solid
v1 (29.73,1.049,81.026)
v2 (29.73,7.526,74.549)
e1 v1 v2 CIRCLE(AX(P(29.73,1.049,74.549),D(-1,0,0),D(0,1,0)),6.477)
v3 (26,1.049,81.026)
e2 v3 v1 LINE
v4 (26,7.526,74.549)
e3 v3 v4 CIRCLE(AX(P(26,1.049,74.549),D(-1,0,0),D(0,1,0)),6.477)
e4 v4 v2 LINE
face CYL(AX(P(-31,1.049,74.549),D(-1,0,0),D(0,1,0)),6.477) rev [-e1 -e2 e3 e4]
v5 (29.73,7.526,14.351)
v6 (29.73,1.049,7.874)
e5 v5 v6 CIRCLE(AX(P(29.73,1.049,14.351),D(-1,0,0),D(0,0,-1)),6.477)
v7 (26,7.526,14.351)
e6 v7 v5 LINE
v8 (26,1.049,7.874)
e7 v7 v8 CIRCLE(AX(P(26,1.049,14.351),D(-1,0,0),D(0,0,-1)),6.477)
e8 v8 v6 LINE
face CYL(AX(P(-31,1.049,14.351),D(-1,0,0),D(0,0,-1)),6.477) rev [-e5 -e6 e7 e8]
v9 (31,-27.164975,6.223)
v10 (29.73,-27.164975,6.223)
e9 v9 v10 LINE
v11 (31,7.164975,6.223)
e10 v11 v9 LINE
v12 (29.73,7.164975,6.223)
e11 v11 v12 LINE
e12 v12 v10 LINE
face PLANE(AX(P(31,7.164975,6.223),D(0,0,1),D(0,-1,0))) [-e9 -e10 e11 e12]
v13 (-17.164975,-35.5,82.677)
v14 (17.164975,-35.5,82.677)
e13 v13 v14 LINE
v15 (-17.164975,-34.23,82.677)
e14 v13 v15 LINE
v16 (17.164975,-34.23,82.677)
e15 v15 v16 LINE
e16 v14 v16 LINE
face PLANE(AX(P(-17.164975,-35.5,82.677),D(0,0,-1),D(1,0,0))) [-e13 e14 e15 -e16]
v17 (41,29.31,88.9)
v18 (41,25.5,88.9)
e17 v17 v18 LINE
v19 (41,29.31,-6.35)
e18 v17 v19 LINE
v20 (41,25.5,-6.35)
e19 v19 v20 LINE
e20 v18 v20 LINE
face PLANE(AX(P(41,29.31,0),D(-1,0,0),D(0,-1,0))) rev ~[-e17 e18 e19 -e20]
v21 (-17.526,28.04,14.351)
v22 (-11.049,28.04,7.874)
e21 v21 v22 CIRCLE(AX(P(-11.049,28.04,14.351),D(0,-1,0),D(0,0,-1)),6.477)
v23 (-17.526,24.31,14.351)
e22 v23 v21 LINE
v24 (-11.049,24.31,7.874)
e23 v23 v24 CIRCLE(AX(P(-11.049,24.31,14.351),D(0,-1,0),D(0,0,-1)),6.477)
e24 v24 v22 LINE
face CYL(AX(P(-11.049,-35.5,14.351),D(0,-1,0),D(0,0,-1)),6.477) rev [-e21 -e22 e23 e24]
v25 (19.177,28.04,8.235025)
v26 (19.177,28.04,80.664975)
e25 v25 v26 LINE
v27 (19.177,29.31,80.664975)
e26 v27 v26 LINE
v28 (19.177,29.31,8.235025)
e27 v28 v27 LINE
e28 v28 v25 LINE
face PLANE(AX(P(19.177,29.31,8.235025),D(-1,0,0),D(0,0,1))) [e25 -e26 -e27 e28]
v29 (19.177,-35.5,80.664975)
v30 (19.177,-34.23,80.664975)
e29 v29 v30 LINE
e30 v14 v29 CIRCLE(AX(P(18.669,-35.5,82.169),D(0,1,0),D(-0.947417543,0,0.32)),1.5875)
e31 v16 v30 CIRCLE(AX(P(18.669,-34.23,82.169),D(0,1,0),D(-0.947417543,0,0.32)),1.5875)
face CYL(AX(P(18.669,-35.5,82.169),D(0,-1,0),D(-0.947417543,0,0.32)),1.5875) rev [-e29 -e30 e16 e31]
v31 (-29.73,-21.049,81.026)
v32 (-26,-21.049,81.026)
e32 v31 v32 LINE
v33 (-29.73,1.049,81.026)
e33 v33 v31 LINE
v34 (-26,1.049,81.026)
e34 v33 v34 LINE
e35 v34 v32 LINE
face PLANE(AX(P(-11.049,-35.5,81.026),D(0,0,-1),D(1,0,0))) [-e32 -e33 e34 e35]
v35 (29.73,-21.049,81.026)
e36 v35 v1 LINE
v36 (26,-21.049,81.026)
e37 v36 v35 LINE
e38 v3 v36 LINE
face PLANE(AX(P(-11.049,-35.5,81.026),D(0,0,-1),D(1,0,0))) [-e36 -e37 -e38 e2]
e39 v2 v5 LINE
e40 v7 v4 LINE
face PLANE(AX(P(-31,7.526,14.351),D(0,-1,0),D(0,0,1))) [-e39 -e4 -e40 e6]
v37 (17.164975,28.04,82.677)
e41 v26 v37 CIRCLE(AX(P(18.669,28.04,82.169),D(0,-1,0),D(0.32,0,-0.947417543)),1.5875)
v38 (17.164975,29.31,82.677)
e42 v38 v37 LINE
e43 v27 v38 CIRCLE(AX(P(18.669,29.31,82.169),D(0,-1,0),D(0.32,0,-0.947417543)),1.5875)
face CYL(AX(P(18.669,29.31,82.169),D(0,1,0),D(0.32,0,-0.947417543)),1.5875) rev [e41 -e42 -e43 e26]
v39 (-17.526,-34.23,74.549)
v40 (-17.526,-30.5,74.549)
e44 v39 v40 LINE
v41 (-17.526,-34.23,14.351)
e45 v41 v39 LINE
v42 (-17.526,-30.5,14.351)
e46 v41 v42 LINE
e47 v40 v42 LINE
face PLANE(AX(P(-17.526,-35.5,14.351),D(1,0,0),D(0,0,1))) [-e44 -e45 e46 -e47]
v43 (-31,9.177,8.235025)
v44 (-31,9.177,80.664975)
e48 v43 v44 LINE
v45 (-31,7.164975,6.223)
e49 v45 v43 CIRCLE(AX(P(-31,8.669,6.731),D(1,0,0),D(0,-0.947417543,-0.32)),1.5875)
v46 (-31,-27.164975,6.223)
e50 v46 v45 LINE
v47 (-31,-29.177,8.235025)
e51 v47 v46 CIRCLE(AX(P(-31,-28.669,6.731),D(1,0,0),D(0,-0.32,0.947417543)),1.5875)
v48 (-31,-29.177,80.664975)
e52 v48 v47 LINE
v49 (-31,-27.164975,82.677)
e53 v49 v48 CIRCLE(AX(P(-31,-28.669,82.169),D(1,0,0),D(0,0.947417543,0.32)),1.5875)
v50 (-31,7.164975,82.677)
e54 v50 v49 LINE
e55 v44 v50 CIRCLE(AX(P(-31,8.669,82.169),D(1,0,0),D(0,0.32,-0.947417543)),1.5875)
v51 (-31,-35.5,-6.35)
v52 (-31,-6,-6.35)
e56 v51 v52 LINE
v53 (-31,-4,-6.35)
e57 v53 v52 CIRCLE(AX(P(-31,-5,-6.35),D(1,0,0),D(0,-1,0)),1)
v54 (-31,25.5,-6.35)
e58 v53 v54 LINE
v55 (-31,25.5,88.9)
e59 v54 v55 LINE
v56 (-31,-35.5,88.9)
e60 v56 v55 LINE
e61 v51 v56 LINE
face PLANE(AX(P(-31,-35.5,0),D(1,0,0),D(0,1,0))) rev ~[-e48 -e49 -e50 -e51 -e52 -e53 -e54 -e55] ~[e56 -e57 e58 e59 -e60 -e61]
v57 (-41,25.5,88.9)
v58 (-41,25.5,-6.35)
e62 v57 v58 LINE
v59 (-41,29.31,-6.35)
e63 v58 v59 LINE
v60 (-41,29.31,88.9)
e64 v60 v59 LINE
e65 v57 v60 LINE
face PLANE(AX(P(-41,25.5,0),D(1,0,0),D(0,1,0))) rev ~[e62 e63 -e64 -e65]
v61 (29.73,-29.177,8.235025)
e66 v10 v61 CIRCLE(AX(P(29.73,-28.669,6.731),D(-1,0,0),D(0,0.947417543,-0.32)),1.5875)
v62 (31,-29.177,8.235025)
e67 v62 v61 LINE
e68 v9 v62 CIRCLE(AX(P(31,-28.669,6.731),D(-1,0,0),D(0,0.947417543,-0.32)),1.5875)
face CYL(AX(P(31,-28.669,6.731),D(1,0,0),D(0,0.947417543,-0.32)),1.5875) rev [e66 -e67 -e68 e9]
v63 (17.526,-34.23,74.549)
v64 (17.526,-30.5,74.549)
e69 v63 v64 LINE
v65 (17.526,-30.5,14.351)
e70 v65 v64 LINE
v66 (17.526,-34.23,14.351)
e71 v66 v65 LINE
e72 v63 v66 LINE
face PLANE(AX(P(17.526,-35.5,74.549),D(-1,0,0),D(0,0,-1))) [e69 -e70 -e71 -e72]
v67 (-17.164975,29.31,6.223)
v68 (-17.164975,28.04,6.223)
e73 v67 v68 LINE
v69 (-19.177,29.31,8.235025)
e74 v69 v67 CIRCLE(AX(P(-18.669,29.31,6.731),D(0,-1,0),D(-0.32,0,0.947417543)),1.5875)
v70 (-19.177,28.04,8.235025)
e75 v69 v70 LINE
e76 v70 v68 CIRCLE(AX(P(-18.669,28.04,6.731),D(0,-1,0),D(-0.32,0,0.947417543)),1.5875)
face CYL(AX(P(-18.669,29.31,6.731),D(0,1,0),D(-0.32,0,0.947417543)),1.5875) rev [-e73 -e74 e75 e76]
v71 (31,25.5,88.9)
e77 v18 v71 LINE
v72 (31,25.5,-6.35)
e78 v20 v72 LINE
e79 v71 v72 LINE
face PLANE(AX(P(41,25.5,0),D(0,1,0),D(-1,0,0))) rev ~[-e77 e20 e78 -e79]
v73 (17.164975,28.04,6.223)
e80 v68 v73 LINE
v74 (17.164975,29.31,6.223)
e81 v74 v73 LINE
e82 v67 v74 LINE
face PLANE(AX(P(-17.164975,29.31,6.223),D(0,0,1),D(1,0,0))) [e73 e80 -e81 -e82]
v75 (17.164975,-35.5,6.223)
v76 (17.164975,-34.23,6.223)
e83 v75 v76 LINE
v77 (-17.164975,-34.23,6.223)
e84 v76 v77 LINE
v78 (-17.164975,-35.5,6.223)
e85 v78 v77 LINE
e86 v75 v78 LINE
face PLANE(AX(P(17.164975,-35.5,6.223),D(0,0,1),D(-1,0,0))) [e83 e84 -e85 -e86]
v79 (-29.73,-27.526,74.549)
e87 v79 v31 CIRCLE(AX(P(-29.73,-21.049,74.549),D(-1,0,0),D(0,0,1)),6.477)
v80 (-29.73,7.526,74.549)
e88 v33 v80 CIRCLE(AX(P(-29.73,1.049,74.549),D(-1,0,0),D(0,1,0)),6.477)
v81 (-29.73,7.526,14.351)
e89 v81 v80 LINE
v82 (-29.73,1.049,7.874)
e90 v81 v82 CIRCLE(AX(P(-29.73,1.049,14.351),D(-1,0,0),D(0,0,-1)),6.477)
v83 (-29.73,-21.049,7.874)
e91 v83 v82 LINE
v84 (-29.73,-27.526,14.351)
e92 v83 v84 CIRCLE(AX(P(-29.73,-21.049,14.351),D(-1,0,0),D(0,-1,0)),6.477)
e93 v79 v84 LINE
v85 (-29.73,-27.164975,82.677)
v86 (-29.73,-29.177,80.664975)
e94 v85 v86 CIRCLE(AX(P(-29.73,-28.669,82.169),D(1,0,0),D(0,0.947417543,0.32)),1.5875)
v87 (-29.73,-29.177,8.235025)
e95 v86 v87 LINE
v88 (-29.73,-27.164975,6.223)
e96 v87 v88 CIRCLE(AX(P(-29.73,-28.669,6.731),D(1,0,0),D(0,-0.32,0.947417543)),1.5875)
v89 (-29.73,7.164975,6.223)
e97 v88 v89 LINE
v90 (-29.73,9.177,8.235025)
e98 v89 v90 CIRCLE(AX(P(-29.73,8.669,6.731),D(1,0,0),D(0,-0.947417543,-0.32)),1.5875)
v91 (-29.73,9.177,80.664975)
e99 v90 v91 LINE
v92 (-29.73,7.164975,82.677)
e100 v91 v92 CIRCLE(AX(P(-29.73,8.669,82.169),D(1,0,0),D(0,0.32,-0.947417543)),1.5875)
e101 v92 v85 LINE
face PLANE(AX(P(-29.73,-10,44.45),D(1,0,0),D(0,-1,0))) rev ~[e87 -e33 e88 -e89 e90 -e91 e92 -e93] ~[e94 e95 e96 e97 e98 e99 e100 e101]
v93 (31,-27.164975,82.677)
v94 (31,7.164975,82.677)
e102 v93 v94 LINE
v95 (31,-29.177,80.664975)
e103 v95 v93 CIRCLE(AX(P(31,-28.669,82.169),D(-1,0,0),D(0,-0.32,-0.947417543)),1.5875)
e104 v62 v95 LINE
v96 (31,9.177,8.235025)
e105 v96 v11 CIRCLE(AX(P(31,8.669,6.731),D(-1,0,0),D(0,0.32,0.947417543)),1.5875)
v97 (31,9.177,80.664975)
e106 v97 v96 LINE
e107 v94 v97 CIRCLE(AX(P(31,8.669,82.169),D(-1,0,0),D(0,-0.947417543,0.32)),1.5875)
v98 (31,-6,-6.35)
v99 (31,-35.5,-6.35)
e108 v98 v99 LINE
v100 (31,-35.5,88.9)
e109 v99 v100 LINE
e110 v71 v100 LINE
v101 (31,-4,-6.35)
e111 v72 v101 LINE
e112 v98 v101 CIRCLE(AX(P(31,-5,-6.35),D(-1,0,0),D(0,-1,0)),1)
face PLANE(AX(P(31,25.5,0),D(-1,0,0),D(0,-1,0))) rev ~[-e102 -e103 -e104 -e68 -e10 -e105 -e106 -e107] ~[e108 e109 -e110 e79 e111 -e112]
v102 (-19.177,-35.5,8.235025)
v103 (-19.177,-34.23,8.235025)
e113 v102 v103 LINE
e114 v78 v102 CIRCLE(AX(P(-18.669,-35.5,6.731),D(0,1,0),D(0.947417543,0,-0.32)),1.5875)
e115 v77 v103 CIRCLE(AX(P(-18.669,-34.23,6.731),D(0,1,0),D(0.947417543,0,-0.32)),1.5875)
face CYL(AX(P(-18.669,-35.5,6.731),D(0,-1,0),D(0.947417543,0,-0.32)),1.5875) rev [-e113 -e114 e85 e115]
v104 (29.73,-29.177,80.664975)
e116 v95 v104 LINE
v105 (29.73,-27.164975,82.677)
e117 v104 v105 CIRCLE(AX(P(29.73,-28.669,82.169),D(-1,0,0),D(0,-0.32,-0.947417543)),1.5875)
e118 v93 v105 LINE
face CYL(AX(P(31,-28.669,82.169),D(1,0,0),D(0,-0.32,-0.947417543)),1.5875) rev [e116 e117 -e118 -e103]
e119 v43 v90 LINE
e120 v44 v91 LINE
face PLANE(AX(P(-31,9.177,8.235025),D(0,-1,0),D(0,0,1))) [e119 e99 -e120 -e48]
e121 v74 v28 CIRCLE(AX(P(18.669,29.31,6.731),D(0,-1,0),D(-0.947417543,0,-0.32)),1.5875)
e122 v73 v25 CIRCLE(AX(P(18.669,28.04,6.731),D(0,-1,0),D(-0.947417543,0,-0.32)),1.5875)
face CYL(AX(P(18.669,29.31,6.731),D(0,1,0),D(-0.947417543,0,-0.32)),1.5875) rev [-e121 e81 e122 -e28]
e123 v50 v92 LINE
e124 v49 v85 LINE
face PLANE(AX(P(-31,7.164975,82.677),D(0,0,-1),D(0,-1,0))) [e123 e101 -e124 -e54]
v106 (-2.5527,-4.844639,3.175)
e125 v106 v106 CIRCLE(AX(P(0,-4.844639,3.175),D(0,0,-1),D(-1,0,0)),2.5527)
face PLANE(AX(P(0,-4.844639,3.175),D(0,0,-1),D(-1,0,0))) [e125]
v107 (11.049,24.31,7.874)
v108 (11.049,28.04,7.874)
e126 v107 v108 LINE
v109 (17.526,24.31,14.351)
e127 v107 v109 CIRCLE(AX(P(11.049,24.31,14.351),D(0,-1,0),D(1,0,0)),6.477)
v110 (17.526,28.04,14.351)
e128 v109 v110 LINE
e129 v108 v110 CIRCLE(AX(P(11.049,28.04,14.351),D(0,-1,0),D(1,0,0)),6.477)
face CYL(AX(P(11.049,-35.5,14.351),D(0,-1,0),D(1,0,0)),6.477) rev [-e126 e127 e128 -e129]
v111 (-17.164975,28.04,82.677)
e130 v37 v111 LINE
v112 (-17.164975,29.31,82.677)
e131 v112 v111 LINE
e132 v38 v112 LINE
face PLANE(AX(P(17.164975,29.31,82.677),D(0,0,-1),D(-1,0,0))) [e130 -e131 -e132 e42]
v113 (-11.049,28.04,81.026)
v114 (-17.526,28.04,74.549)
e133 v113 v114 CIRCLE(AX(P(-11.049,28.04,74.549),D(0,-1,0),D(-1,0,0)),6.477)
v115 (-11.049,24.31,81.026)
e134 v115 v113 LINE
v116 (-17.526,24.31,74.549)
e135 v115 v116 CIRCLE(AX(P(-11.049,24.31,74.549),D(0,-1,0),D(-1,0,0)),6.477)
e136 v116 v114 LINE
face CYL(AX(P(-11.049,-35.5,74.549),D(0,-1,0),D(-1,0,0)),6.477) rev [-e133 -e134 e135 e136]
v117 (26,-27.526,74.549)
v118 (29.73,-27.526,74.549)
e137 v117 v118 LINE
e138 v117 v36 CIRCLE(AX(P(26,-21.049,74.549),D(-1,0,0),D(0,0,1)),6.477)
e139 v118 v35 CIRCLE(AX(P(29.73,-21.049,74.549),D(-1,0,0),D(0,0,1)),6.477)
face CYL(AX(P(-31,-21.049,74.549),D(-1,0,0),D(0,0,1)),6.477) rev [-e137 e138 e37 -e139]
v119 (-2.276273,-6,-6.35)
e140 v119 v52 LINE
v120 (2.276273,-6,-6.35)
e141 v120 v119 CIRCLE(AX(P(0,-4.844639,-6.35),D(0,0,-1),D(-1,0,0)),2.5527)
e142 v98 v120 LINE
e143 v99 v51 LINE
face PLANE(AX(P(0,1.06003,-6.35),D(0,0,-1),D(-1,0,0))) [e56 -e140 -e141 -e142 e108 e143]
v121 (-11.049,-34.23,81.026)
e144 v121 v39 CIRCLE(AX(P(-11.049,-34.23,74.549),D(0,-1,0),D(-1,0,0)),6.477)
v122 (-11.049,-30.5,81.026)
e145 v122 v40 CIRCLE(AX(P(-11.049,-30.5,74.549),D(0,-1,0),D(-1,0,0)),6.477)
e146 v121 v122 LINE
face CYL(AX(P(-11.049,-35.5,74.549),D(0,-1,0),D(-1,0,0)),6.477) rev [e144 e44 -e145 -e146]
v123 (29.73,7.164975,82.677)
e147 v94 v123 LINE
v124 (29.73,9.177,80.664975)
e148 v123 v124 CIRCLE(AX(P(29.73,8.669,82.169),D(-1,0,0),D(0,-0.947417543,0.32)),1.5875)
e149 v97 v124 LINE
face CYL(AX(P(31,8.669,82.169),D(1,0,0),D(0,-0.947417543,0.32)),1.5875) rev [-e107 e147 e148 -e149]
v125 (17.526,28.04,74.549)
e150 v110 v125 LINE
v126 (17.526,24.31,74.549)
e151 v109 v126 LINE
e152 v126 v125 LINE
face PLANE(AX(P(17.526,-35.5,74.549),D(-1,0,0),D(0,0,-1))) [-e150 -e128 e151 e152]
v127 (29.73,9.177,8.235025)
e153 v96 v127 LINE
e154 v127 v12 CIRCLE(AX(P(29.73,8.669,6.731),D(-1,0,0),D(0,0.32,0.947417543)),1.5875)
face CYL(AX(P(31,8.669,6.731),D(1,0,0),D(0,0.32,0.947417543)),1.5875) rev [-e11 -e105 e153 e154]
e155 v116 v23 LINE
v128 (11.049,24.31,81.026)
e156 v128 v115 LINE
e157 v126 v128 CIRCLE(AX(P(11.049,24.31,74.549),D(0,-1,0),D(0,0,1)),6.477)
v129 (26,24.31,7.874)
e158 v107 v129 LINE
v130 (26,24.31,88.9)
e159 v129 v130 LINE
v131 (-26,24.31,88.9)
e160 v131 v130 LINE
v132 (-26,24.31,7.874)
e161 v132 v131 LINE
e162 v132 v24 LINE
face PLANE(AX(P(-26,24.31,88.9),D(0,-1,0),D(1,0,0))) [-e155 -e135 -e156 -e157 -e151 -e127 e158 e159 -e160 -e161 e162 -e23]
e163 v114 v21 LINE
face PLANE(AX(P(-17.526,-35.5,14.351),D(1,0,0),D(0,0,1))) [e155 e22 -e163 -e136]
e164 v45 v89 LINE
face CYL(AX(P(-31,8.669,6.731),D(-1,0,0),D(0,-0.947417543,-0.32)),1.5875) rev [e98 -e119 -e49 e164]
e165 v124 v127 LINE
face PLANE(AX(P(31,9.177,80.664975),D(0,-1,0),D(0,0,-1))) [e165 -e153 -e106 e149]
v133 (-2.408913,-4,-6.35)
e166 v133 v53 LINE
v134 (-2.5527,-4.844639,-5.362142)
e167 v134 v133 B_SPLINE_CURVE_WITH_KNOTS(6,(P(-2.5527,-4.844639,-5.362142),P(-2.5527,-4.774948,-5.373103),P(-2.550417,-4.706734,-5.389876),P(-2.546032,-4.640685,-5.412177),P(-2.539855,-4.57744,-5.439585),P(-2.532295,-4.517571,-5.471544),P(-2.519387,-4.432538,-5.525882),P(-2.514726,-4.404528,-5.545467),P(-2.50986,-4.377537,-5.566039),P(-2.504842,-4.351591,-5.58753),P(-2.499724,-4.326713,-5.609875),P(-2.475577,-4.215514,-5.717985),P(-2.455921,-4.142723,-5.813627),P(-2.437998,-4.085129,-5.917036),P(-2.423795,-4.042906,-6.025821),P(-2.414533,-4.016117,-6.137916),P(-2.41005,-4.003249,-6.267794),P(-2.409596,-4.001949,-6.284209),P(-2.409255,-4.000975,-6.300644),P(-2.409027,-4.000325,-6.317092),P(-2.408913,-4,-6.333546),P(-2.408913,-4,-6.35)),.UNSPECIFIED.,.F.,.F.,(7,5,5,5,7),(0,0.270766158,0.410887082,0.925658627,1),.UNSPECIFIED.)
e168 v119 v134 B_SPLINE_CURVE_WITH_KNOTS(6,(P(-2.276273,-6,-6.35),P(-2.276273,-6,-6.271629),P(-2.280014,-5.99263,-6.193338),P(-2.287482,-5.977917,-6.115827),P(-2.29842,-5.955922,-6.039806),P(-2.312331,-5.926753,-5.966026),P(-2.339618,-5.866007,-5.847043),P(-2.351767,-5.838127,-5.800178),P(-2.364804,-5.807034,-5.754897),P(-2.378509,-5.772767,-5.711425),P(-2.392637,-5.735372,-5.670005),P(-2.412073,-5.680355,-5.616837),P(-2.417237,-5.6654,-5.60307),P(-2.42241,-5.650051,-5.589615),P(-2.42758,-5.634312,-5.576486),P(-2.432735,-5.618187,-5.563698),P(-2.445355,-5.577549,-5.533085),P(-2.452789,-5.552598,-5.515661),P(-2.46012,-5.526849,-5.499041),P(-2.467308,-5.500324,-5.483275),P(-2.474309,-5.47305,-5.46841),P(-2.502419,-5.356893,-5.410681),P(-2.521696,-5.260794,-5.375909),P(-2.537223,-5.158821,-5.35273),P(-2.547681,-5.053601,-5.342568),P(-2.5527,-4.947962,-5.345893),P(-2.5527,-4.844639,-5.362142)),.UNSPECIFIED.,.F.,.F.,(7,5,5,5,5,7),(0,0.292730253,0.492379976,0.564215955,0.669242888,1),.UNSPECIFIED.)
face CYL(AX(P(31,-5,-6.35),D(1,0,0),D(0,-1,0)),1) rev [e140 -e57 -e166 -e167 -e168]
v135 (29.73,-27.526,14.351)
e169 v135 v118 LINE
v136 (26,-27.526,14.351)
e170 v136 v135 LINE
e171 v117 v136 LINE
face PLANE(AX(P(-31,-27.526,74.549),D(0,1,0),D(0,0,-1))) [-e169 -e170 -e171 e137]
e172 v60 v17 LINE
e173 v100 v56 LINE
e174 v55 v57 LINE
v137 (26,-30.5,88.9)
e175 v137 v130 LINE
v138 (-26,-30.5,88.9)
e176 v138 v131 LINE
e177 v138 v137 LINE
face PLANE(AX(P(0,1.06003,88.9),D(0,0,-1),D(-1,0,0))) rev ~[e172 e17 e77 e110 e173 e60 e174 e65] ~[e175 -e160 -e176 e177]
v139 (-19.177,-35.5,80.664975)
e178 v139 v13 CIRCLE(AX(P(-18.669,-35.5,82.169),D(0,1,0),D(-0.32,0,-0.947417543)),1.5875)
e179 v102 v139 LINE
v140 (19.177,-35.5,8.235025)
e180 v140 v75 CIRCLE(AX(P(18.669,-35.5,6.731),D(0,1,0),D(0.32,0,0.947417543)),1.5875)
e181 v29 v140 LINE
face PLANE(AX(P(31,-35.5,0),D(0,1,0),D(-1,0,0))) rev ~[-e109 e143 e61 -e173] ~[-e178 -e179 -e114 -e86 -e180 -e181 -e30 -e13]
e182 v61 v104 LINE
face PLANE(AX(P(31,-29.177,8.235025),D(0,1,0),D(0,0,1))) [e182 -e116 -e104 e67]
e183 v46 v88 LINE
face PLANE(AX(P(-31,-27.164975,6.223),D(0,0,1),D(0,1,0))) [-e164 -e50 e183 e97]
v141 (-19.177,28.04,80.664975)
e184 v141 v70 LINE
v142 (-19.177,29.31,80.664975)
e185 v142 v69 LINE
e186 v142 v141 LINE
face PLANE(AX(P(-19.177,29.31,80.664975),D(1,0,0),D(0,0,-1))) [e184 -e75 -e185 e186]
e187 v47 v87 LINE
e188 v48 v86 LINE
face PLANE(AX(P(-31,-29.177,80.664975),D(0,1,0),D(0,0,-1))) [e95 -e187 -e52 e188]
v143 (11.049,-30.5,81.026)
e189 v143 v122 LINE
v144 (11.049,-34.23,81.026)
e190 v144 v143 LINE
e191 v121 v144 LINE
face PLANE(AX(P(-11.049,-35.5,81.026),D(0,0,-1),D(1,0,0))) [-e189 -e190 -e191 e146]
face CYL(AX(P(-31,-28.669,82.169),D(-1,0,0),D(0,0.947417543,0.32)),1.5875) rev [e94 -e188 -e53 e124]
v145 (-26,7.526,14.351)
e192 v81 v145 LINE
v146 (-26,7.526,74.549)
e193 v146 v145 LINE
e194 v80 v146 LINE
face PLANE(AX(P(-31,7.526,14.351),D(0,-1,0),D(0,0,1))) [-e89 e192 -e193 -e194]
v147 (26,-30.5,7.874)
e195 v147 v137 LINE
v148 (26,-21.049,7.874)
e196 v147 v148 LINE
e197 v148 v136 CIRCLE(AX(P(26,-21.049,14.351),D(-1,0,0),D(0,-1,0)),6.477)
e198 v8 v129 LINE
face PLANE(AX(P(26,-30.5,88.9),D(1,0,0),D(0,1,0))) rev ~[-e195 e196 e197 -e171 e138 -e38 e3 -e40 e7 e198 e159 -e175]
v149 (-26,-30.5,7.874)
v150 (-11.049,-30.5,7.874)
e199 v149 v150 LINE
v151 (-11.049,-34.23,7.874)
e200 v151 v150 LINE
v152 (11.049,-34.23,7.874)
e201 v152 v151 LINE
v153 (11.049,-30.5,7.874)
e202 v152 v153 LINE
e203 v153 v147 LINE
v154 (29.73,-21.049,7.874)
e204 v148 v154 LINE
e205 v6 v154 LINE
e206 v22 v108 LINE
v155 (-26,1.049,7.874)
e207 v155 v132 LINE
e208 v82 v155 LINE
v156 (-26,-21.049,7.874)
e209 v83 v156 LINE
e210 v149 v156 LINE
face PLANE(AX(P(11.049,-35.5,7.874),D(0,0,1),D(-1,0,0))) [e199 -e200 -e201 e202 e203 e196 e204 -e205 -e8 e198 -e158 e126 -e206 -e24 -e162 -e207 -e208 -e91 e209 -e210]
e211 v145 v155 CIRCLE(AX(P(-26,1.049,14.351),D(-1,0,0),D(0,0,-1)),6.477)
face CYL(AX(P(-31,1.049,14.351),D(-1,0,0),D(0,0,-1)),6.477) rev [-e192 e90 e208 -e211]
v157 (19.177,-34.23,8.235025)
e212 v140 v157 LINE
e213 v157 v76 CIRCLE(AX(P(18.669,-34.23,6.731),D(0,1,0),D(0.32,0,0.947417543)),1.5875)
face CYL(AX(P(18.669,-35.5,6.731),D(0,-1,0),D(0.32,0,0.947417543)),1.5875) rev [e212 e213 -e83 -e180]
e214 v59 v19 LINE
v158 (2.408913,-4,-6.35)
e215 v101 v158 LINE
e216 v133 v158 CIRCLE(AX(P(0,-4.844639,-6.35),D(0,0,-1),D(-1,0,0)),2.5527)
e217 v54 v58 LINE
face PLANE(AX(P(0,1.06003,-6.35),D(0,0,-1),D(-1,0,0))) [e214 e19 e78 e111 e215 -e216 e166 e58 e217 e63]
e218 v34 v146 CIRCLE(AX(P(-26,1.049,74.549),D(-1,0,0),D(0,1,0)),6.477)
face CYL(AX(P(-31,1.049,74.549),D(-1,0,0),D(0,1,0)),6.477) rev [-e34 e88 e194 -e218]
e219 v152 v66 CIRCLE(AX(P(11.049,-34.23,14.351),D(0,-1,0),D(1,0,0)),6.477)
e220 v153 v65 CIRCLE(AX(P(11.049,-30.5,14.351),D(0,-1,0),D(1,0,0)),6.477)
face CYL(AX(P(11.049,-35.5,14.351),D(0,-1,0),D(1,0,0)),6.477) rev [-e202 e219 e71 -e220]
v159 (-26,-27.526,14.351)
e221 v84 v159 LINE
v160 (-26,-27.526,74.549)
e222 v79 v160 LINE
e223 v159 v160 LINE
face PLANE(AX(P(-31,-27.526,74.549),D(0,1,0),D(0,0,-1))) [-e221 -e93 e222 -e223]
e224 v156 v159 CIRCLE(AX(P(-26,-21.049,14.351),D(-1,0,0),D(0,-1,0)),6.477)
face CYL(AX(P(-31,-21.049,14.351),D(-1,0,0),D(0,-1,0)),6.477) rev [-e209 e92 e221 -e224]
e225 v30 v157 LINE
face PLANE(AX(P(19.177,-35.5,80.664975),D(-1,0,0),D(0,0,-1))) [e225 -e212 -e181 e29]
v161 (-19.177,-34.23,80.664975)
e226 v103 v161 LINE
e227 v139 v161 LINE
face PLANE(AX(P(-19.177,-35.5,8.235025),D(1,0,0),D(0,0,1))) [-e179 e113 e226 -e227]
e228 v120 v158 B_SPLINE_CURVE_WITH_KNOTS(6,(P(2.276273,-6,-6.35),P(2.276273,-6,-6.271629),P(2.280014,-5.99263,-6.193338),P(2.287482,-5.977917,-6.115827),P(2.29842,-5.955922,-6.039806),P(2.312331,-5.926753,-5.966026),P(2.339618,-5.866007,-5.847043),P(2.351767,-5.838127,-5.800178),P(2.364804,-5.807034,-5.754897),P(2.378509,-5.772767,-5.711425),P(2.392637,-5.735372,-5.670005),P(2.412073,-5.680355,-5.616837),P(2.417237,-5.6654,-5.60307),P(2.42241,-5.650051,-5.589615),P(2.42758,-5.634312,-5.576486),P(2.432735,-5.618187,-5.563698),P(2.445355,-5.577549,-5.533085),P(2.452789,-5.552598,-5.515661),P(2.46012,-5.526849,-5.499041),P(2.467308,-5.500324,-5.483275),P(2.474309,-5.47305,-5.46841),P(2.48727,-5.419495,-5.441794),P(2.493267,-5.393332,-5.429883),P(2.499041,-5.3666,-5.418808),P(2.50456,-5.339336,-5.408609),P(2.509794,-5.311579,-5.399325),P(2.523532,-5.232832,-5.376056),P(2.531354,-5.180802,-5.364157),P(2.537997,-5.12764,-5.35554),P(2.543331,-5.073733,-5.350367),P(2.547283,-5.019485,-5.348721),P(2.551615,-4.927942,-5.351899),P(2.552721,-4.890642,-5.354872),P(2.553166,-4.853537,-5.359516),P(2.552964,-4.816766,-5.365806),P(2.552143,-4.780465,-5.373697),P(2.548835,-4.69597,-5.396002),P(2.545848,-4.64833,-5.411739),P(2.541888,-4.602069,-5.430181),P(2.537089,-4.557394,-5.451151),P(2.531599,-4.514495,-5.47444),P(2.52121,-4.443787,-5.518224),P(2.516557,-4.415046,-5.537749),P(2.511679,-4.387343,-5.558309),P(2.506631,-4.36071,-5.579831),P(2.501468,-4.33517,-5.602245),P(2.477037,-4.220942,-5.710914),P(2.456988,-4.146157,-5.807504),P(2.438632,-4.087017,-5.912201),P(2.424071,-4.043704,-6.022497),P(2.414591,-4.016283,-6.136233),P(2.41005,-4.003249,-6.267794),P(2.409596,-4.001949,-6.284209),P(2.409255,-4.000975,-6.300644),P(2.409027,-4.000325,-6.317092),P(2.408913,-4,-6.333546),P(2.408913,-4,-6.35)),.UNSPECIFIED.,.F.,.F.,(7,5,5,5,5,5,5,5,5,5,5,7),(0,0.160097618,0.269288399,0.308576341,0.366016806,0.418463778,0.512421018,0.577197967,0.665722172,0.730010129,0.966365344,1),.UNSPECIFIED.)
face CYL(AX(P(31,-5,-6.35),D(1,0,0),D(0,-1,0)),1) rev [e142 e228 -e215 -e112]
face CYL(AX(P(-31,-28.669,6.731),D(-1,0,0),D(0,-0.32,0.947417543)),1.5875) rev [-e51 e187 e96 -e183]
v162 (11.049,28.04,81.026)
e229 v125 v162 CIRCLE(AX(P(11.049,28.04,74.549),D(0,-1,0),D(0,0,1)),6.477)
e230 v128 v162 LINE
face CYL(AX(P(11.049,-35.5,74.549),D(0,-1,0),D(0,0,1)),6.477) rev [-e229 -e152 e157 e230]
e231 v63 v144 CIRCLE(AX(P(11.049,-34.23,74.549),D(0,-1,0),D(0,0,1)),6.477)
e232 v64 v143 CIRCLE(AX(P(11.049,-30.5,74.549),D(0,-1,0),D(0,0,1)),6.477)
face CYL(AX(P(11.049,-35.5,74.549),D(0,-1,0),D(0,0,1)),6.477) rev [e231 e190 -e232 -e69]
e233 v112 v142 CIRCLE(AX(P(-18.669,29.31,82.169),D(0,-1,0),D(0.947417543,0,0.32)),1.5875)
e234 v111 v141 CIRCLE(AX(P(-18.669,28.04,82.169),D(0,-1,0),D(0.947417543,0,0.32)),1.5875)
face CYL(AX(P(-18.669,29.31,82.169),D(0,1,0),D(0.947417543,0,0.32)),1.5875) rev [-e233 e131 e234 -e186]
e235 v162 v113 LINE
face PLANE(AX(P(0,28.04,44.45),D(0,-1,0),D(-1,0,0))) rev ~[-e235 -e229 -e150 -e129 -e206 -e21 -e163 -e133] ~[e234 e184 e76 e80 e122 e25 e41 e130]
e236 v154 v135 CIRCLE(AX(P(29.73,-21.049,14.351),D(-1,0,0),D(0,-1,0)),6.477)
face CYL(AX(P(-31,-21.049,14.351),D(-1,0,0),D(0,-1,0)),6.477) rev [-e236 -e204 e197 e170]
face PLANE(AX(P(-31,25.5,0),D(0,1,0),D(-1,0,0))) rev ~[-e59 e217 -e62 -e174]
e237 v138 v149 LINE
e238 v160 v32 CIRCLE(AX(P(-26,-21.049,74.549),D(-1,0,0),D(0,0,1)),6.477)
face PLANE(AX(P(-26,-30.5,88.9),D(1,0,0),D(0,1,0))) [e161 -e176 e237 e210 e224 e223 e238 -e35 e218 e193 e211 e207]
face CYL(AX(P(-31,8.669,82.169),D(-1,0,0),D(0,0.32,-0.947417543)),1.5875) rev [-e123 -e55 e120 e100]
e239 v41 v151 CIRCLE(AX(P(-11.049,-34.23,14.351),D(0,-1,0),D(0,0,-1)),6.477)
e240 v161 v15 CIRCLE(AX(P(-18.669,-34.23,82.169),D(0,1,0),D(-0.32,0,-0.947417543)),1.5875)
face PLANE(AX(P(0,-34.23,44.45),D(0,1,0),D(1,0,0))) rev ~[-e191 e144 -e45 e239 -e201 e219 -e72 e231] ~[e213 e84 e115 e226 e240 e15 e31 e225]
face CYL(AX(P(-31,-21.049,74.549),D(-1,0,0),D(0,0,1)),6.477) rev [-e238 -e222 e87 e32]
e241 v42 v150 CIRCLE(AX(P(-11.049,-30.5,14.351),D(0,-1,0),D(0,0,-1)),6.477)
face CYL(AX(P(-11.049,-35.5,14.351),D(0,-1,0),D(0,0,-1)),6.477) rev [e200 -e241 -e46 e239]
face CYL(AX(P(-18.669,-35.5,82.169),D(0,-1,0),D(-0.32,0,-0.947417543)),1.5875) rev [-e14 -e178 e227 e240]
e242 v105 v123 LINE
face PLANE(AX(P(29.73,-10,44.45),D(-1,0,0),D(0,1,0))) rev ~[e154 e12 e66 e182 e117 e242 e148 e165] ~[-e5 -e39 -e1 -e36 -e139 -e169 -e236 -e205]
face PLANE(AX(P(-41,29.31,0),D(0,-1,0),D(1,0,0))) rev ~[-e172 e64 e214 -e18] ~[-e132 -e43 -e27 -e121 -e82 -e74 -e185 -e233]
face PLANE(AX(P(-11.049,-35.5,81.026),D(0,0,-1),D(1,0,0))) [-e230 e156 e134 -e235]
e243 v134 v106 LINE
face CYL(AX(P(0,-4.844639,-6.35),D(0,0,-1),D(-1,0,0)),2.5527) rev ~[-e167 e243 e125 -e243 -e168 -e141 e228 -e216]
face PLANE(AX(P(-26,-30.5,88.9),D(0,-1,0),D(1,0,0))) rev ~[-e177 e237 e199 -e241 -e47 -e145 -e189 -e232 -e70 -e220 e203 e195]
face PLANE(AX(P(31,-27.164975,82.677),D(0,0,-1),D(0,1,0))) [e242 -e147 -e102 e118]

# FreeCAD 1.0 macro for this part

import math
import FreeCAD as App
import Part
import Sketcher
from FreeCAD import Vector
Q = App.Units.Quantity


def add_polygon(sketch, points):
    """Adds a closed chain of lines whose ends are joined by coincident constraints."""
    first, n = sketch.GeometryCount, len(points)
    for a, b in zip(points, points[1:] + points[:1]):
        sketch.addGeometry(Part.LineSegment(App.Vector(*a, 0), App.Vector(*b, 0)), False)
    for i in range(n):
        sketch.addConstraint(Sketcher.Constraint("Coincident", first + i, 2, first + (i + 1) % n, 1))

doc = App.newDocument("Part")
params = doc.addObject("Spreadsheet::Sheet", "Params")
for row, (alias, value) in enumerate([
    ("sketch1_height", "0.15 in"),
    ("pad1_length", "3.5 in"),
    ("sketch2_radius", "0.255 in"),
    ("sketch2_width", "0.87 in"),
    ("sketch2_height", "2.37 in"),
    ("sketch3_radius", "0.255 in"),
    ("sketch3_width", "0.87 in"),
    ("sketch3_height", "2.37 in"),
    ("pocket3_length", "0.625 in"),
    ("pocket4_length", "2.5 in"),
    ("pocket5_length", "3.19 in"),
    ("sketch7_height", "0.15 in"),
    ("pad2_length", "0.25 in"),
    ("sketch8_diameter", "0.201 in"),
    ("pocket6_length", "0.375 in"),
    ("sketch10_radius", "0.0625 in"),
    ("sketch10_width", "0.02 in"),
    ("pocket8_length", "0.05 in"),
    ("sketch11_radius", "0.0625 in"),
    ("sketch11_width", "0.02 in"),
    ("pocket9_length", "0.05 in"),
    ("sketch12_radius", "0.0625 in"),
    ("sketch12_width", "0.02 in"),
    ("pocket10_length", "0.05 in"),
    ("sketch13_radius", "0.0625 in"),
    ("sketch13_width", "0.02 in"),
    ("pocket11_length", "0.05 in"),
], start=1):
    params.set(f"A{row}", alias)
    params.set(f"B{row}", "=" + value)
    params.setAlias(f"B{row}", alias)

body = doc.addObject("PartDesign::Body", "Body")

# Sketch on XY plane
sketch1 = body.newObject("Sketcher::SketchObject", "Sketch")
sketch1.AttachmentSupport = (doc.getObject("XY_Plane"), [""])
sketch1.MapMode = "FlatFace"
add_polygon(sketch1, [(41, 29.3), (-41, 29.3), (-41, 25.5), (-31, 25.5), (-31, -35.5), (31, -35.5), (31, 25.5), (41, 25.5)])  # lines 0-7
sketch1.addConstraint([
    Sketcher.Constraint("Horizontal", 0),
    Sketcher.Constraint("Vertical", 1),
    Sketcher.Constraint("Horizontal", 2),
    Sketcher.Constraint("Vertical", 3),
    Sketcher.Constraint("Horizontal", 4),
    Sketcher.Constraint("Vertical", 5),
    Sketcher.Constraint("Horizontal", 6),
    Sketcher.Constraint("Vertical", 7),
    Sketcher.Constraint("Symmetric", 2, 2, 5, 2, -2),
    Sketcher.Constraint("Equal", 2, 6),
    Sketcher.Constraint("DistanceY", 1, 2, 1, 1, Q("0.15 in")),
    Sketcher.Constraint("DistanceX", 0, 2, 0, 1, Q("82 mm")),
    Sketcher.Constraint("DistanceX", 2, 1, 2, 2, Q("10 mm")),
    Sketcher.Constraint("DistanceY", 3, 2, 3, 1, Q("61 mm")),
    Sketcher.Constraint("DistanceY", -1, 1, 0, 2, Q("29.31 mm")),
])
sketch1.setExpression("Constraints[18]", "Params.sketch1_height")
pad1 = body.newObject("PartDesign::Pad", "Pad")
pad1.Profile = sketch1
pad1.setExpression("Length", "Params.pad1_length")

# Sketch on YZ plane
sketch2 = body.newObject("Sketcher::SketchObject", "Sketch001")
sketch2.AttachmentSupport = (doc.getObject("YZ_Plane"), [""])
sketch2.MapMode = "FlatFace"
sketch2.AttachmentOffset = App.Placement(Vector(0, 0, -31), App.Rotation())
sketch2.addGeometry([
    Part.LineSegment(Vector(8, 75, 0), Vector(8, 14, 0)),  # 0
    Part.ArcOfCircle(Part.Circle(Vector(1, 14, 0), Vector(0, 0, 1), 6), math.radians(-90), math.radians(0)),  # 1
    Part.LineSegment(Vector(1, 8, 0), Vector(-21, 8, 0)),  # 2
    Part.ArcOfCircle(Part.Circle(Vector(-21, 14, 0), Vector(0, 0, 1), 6), math.radians(180), math.radians(270)),  # 3
    Part.LineSegment(Vector(-28, 14, 0), Vector(-28, 75, 0)),  # 4
    Part.ArcOfCircle(Part.Circle(Vector(-21, 75, 0), Vector(0, 0, 1), 6), math.radians(90), math.radians(180)),  # 5
    Part.LineSegment(Vector(-21, 81, 0), Vector(1, 81, 0)),  # 6
    Part.ArcOfCircle(Part.Circle(Vector(1, 75, 0), Vector(0, 0, 1), 6), math.radians(0), math.radians(90)),  # 7
], False)
sketch2.addConstraint([
    Sketcher.Constraint("Tangent", 0, 2, 1, 2),
    Sketcher.Constraint("Tangent", 1, 1, 2, 1),
    Sketcher.Constraint("Tangent", 2, 2, 3, 2),
    Sketcher.Constraint("Tangent", 3, 1, 4, 1),
    Sketcher.Constraint("Tangent", 4, 2, 5, 2),
    Sketcher.Constraint("Tangent", 5, 1, 6, 1),
    Sketcher.Constraint("Tangent", 6, 2, 7, 2),
    Sketcher.Constraint("Tangent", 7, 1, 0, 1),
    Sketcher.Constraint("Vertical", 0),
    Sketcher.Constraint("Horizontal", 2),
    Sketcher.Constraint("Vertical", 4),
    Sketcher.Constraint("Horizontal", 6),
    Sketcher.Constraint("Equal", 1, 3),
    Sketcher.Constraint("Equal", 3, 5),
    Sketcher.Constraint("Equal", 5, 7),
    Sketcher.Constraint("Radius", 1, Q("0.255 in")),
    Sketcher.Constraint("DistanceX", 2, 2, 2, 1, Q("0.87 in")),
    Sketcher.Constraint("DistanceY", 0, 2, 0, 1, Q("2.37 in")),
    Sketcher.Constraint("DistanceY", -1, 1, 1, 1, Q("0.31 in")),
    Sketcher.Constraint("DistanceX", -1, 1, 1, 3, Q("1.049 mm")),
])
sketch2.setExpression("Constraints[15]", "Params.sketch2_radius")
sketch2.setExpression("Constraints[16]", "Params.sketch2_width")
sketch2.setExpression("Constraints[17]", "Params.sketch2_height")
pocket1 = body.newObject("PartDesign::Pocket", "Pocket")
pocket1.Profile = sketch2
pocket1.Type = "ThroughAll"
pocket1.Reversed = True

# Sketch on XZ plane
sketch3 = body.newObject("Sketcher::SketchObject", "Sketch002")
sketch3.AttachmentSupport = (doc.getObject("XZ_Plane"), [""])
sketch3.MapMode = "FlatFace"
sketch3.AttachmentOffset = App.Placement(Vector(0, 0, 35.5), App.Rotation())
sketch3.addGeometry([
    Part.LineSegment(Vector(-18, 75, 0), Vector(-18, 14, 0)),  # 0
    Part.ArcOfCircle(Part.Circle(Vector(-11, 14, 0), Vector(0, 0, 1), 6), math.radians(180), math.radians(270)),  # 1
    Part.LineSegment(Vector(-11, 8, 0), Vector(11, 8, 0)),  # 2
    Part.ArcOfCircle(Part.Circle(Vector(11, 14, 0), Vector(0, 0, 1), 6), math.radians(-90), math.radians(0)),  # 3
    Part.LineSegment(Vector(18, 14, 0), Vector(18, 75, 0)),  # 4
    Part.ArcOfCircle(Part.Circle(Vector(11, 75, 0), Vector(0, 0, 1), 6), math.radians(0), math.radians(90)),  # 5
    Part.LineSegment(Vector(11, 81, 0), Vector(-11, 81, 0)),  # 6
    Part.ArcOfCircle(Part.Circle(Vector(-11, 75, 0), Vector(0, 0, 1), 6), math.radians(90), math.radians(180)),  # 7
], False)
sketch3.addConstraint([
    Sketcher.Constraint("Tangent", 0, 2, 1, 1),
    Sketcher.Constraint("Tangent", 1, 2, 2, 1),
    Sketcher.Constraint("Tangent", 2, 2, 3, 1),
    Sketcher.Constraint("Tangent", 3, 2, 4, 1),
    Sketcher.Constraint("Tangent", 4, 2, 5, 1),
    Sketcher.Constraint("Tangent", 5, 2, 6, 1),
    Sketcher.Constraint("Tangent", 6, 2, 7, 1),
    Sketcher.Constraint("Tangent", 7, 2, 0, 1),
    Sketcher.Constraint("Vertical", 0),
    Sketcher.Constraint("Horizontal", 2),
    Sketcher.Constraint("Vertical", 4),
    Sketcher.Constraint("Horizontal", 6),
    Sketcher.Constraint("Equal", 1, 3),
    Sketcher.Constraint("Equal", 3, 5),
    Sketcher.Constraint("Equal", 5, 7),
    Sketcher.Constraint("Radius", 1, Q("0.255 in")),
    Sketcher.Constraint("DistanceX", 2, 1, 2, 2, Q("0.87 in")),
    Sketcher.Constraint("DistanceY", 0, 2, 0, 1, Q("2.37 in")),
    Sketcher.Constraint("DistanceX", 0, 2, -1, 1, Q("0.69 in")),
    Sketcher.Constraint("DistanceY", -1, 1, 1, 2, Q("0.31 in")),
])
sketch3.setExpression("Constraints[15]", "Params.sketch3_radius")
sketch3.setExpression("Constraints[16]", "Params.sketch3_width")
sketch3.setExpression("Constraints[17]", "Params.sketch3_height")
pocket2 = body.newObject("PartDesign::Pocket", "Pocket001")
pocket2.Profile = sketch3
pocket2.Type = "ThroughAll"

# Sketch on XY plane
sketch4 = body.newObject("Sketcher::SketchObject", "Sketch003")
sketch4.AttachmentSupport = (doc.getObject("XY_Plane"), [""])
sketch4.MapMode = "FlatFace"
sketch4.AttachmentOffset = App.Placement(Vector(0, 0, 3.5 * 25.4), App.Rotation())
add_polygon(sketch4, [(-26, 24), (-26, -30), (26, -30), (26, 24)])  # lines 0-3
sketch4.addConstraint([
    Sketcher.Constraint("Vertical", 0),
    Sketcher.Constraint("Horizontal", 1),
    Sketcher.Constraint("Vertical", 2),
    Sketcher.Constraint("Horizontal", 3),
    Sketcher.Constraint("DistanceX", 1, 1, 1, 2, Q("52 mm")),
    Sketcher.Constraint("DistanceY", 0, 2, 0, 1, Q("54.81 mm")),
    Sketcher.Constraint("DistanceX", 0, 2, -1, 1, Q("26 mm")),
    Sketcher.Constraint("DistanceY", 0, 2, -1, 1, Q("30.5 mm")),
])
pocket3 = body.newObject("PartDesign::Pocket", "Pocket002")
pocket3.Profile = sketch4
pocket3.setExpression("Length", "Params.pocket3_length")

# Sketch on XY plane
sketch5 = body.newObject("Sketcher::SketchObject", "Sketch004")
sketch5.AttachmentSupport = (doc.getObject("XY_Plane"), [""])
sketch5.MapMode = "FlatFace"
sketch5.AttachmentOffset = App.Placement(Vector(0, 0, 3.5 * 25.4), App.Rotation())
add_polygon(sketch5, [(-26, 24), (-26, -30), (26, -30), (26, 24)])  # lines 0-3
sketch5.addConstraint([
    Sketcher.Constraint("Vertical", 0),
    Sketcher.Constraint("Horizontal", 1),
    Sketcher.Constraint("Vertical", 2),
    Sketcher.Constraint("Horizontal", 3),
    Sketcher.Constraint("DistanceX", 1, 1, 1, 2, Q("52 mm")),
    Sketcher.Constraint("DistanceY", 0, 2, 0, 1, Q("54.81 mm")),
    Sketcher.Constraint("DistanceX", 0, 2, -1, 1, Q("26 mm")),
    Sketcher.Constraint("DistanceY", 0, 2, -1, 1, Q("30.5 mm")),
])
pocket4 = body.newObject("PartDesign::Pocket", "Pocket003")
pocket4.Profile = sketch5
pocket4.setExpression("Length", "Params.pocket4_length")

# Sketch on XY plane
sketch6 = body.newObject("Sketcher::SketchObject", "Sketch005")
sketch6.AttachmentSupport = (doc.getObject("XY_Plane"), [""])
sketch6.MapMode = "FlatFace"
sketch6.AttachmentOffset = App.Placement(Vector(0, 0, 3.5 * 25.4), App.Rotation())
add_polygon(sketch6, [(-26, 24), (-26, -30), (26, -30), (26, 24)])  # lines 0-3
sketch6.addConstraint([
    Sketcher.Constraint("Vertical", 0),
    Sketcher.Constraint("Horizontal", 1),
    Sketcher.Constraint("Vertical", 2),
    Sketcher.Constraint("Horizontal", 3),
    Sketcher.Constraint("DistanceX", 1, 1, 1, 2, Q("52 mm")),
    Sketcher.Constraint("DistanceY", 0, 2, 0, 1, Q("54.81 mm")),
    Sketcher.Constraint("DistanceX", 0, 2, -1, 1, Q("26 mm")),
    Sketcher.Constraint("DistanceY", 0, 2, -1, 1, Q("30.5 mm")),
])
pocket5 = body.newObject("PartDesign::Pocket", "Pocket004")
pocket5.Profile = sketch6
pocket5.setExpression("Length", "Params.pocket5_length")

# Sketch on XY plane
sketch7 = body.newObject("Sketcher::SketchObject", "Sketch006")
sketch7.AttachmentSupport = (doc.getObject("XY_Plane"), [""])
sketch7.MapMode = "FlatFace"
add_polygon(sketch7, [(-31, 25.5), (-41, 25.5), (-41, 29.3), (41, 29.3), (41, 25.5), (31, 25.5), (31, -35.5), (-31, -35.5)])  # lines 0-7
sketch7.addConstraint([
    Sketcher.Constraint("Horizontal", 0),
    Sketcher.Constraint("Vertical", 1),
    Sketcher.Constraint("Horizontal", 2),
    Sketcher.Constraint("Vertical", 3),
    Sketcher.Constraint("Horizontal", 4),
    Sketcher.Constraint("Vertical", 5),
    Sketcher.Constraint("Horizontal", 6),
    Sketcher.Constraint("Vertical", 7),
    Sketcher.Constraint("Symmetric", 0, 2, 3, 2, -2),
    Sketcher.Constraint("Equal", 0, 4),
    Sketcher.Constraint("DistanceY", 1, 1, 1, 2, Q("0.15 in")),
    Sketcher.Constraint("DistanceX", 0, 2, 0, 1, Q("10 mm")),
    Sketcher.Constraint("DistanceX", 2, 1, 2, 2, Q("82 mm")),
    Sketcher.Constraint("DistanceY", 5, 2, 5, 1, Q("61 mm")),
    Sketcher.Constraint("DistanceY", -1, 1, 0, 2, Q("25.5 mm")),
])
sketch7.setExpression("Constraints[18]", "Params.sketch7_height")
pad2 = body.newObject("PartDesign::Pad", "Pad001")
pad2.Profile = sketch7
pad2.setExpression("Length", "Params.pad2_length")
pad2.Reversed = True

# Sketch on XY plane
sketch8 = body.newObject("Sketcher::SketchObject", "Sketch007")
sketch8.AttachmentSupport = (doc.getObject("XY_Plane"), [""])
sketch8.MapMode = "FlatFace"
sketch8.AttachmentOffset = App.Placement(Vector(0, 0, -0.25 * 25.4), App.Rotation())
sketch8.addGeometry(Part.Circle(Vector(0, -4.8, 0), Vector(0, 0, 1), 2.6), False)
sketch8.addConstraint([
    Sketcher.Constraint("PointOnObject", 0, 3, -2),
    Sketcher.Constraint("Diameter", 0, Q("0.201 in")),
    Sketcher.Constraint("DistanceY", 0, 3, -1, 1, Q("4.844639 mm")),
])
sketch8.setExpression("Constraints[1]", "Params.sketch8_diameter")
pocket6 = body.newObject("PartDesign::Pocket", "Pocket005")
pocket6.Profile = sketch8
pocket6.setExpression("Length", "Params.pocket6_length")
pocket6.Reversed = True

# Sketch on YZ plane
sketch9 = body.newObject("Sketcher::SketchObject", "Sketch008")
sketch9.AttachmentSupport = (doc.getObject("YZ_Plane"), [""])
sketch9.MapMode = "FlatFace"
sketch9.AttachmentOffset = App.Placement(Vector(0, 0, 31), App.Rotation())
sketch9.addGeometry([
    Part.LineSegment(Vector(-6, -6.3, 0), Vector(-4, -6.3, 0)),
    Part.ArcOfCircle(Part.Circle(Vector(-5, -6.3, 0), Vector(0, 0, 1), 1), math.radians(0), math.radians(180)),
], False)
sketch9.addConstraint([
    Sketcher.Constraint("Coincident", 0, 1, 1, 2),
    Sketcher.Constraint("Coincident", 1, 1, 0, 2),
    Sketcher.Constraint("Horizontal", 0),
    Sketcher.Constraint("Horizontal", 1, 3, 0, 1),
    Sketcher.Constraint("DistanceY", 1, 3, -1, 1, Q("0.25 in")),
    Sketcher.Constraint("Radius", 1, Q("1 mm")),
    Sketcher.Constraint("DistanceX", 1, 3, -1, 1, Q("5 mm")),
])
pocket7 = body.newObject("PartDesign::Pocket", "Pocket006")
pocket7.Profile = sketch9
pocket7.Type = "ThroughAll"

# Sketch on XZ plane
sketch10 = body.newObject("Sketcher::SketchObject", "Sketch009")
sketch10.AttachmentSupport = (doc.getObject("XZ_Plane"), [""])
sketch10.MapMode = "FlatFace"
sketch10.AttachmentOffset = App.Placement(Vector(0, 0, 35.5), App.Rotation())
sketch10.addGeometry([
    Part.LineSegment(Vector(-17.2, 6.2, 0), Vector(17.2, 6.2, 0)),  # 0
    Part.ArcOfCircle(Part.Circle(Vector(18.7, 6.7, 0), Vector(0, 0, 1), 1.6), math.radians(-161), math.radians(71)),  # 1
    Part.LineSegment(Vector(19.2, 8.2, 0), Vector(19.2, 80.7, 0)),  # 2
    Part.ArcOfCircle(Part.Circle(Vector(18.7, 82.2, 0), Vector(0, 0, 1), 1.6), math.radians(-71), math.radians(161)),  # 3
    Part.LineSegment(Vector(17.2, 82.7, 0), Vector(-17.2, 82.7, 0)),  # 4
    Part.ArcOfCircle(Part.Circle(Vector(-18.7, 82.2, 0), Vector(0, 0, 1), 1.6), math.radians(19), math.radians(251)),  # 5
    Part.LineSegment(Vector(-19.2, 80.7, 0), Vector(-19.2, 8.2, 0)),  # 6
    Part.ArcOfCircle(Part.Circle(Vector(-18.7, 6.7, 0), Vector(0, 0, 1), 1.6), math.radians(109), math.radians(341)),  # 7
], False)
sketch10.addConstraint([
    Sketcher.Constraint("Coincident", 0, 2, 1, 1),
    Sketcher.Constraint("Coincident", 1, 2, 2, 1),
    Sketcher.Constraint("Coincident", 2, 2, 3, 1),
    Sketcher.Constraint("Coincident", 3, 2, 4, 1),
    Sketcher.Constraint("Coincident", 4, 2, 5, 1),
    Sketcher.Constraint("Coincident", 5, 2, 6, 1),
    Sketcher.Constraint("Coincident", 6, 2, 7, 1),
    Sketcher.Constraint("Coincident", 7, 2, 0, 1),
    Sketcher.Constraint("Horizontal", 0),
    Sketcher.Constraint("Vertical", 2),
    Sketcher.Constraint("Horizontal", 4),
    Sketcher.Constraint("Vertical", 6),
    Sketcher.Constraint("Equal", 1, 3),
    Sketcher.Constraint("Equal", 3, 5),
    Sketcher.Constraint("Equal", 5, 7),
    Sketcher.Constraint("Symmetric", 3, 3, 5, 3, -2),
    Sketcher.Constraint("Symmetric", 1, 3, 7, 3, -2),
    Sketcher.Constraint("Horizontal", 2, 2, 5, 2),
    Sketcher.Constraint("Vertical", 1, 3, 3, 3),
    Sketcher.Constraint("Vertical", 0, 2, 3, 2),
    Sketcher.Constraint("Radius", 1, Q("0.0625 in")),
    Sketcher.Constraint("DistanceY", 1, 3, 3, 3, Q("2.97 in")),
    Sketcher.Constraint("DistanceX", 5, 3, 3, 3, Q("1.47 in")),
    Sketcher.Constraint("DistanceY", 0, 2, 1, 3, Q("0.02 in")),
    Sketcher.Constraint("DistanceX", 1, 3, 1, 2, Q("0.02 in")),
    Sketcher.Constraint("DistanceY", -1, 1, 1, 3, Q("0.265 in")),
])
sketch10.setExpression("Constraints[20]", "Params.sketch10_radius")
sketch10.setExpression("Constraints[24]", "Params.sketch10_width")
pocket8 = body.newObject("PartDesign::Pocket", "Pocket007")
pocket8.Profile = sketch10
pocket8.setExpression("Length", "Params.pocket8_length")

# Sketch on YZ plane
sketch11 = body.newObject("Sketcher::SketchObject", "Sketch010")
sketch11.AttachmentSupport = (doc.getObject("YZ_Plane"), [""])
sketch11.MapMode = "FlatFace"
sketch11.AttachmentOffset = App.Placement(Vector(0, 0, -31), App.Rotation())
sketch11.addGeometry([
    Part.LineSegment(Vector(7.2, 6.2, 0), Vector(-27.2, 6.2, 0)),  # 0
    Part.ArcOfCircle(Part.Circle(Vector(-28.7, 6.7, 0), Vector(0, 0, 1), 1.6), math.radians(109), math.radians(341)),  # 1
    Part.LineSegment(Vector(-29.2, 8.2, 0), Vector(-29.2, 80.7, 0)),  # 2
    Part.ArcOfCircle(Part.Circle(Vector(-28.7, 82.2, 0), Vector(0, 0, 1), 1.6), math.radians(19), math.radians(251)),  # 3
    Part.LineSegment(Vector(-27.2, 82.7, 0), Vector(7.2, 82.7, 0)),  # 4
    Part.ArcOfCircle(Part.Circle(Vector(8.7, 82.2, 0), Vector(0, 0, 1), 1.6), math.radians(-71), math.radians(161)),  # 5
    Part.LineSegment(Vector(9.2, 80.7, 0), Vector(9.2, 8.2, 0)),  # 6
    Part.ArcOfCircle(Part.Circle(Vector(8.7, 6.7, 0), Vector(0, 0, 1), 1.6), math.radians(-161), math.radians(71)),  # 7
], False)
sketch11.addConstraint([
    Sketcher.Constraint("Coincident", 0, 2, 1, 2),
    Sketcher.Constraint("Coincident", 1, 1, 2, 1),
    Sketcher.Constraint("Coincident", 2, 2, 3, 2),
    Sketcher.Constraint("Coincident", 3, 1, 4, 1),
    Sketcher.Constraint("Coincident", 4, 2, 5, 2),
    Sketcher.Constraint("Coincident", 5, 1, 6, 1),
    Sketcher.Constraint("Coincident", 6, 2, 7, 2),
    Sketcher.Constraint("Coincident", 7, 1, 0, 1),
    Sketcher.Constraint("Horizontal", 0),
    Sketcher.Constraint("Vertical", 2),
    Sketcher.Constraint("Horizontal", 4),
    Sketcher.Constraint("Vertical", 6),
    Sketcher.Constraint("Equal", 1, 3),
    Sketcher.Constraint("Equal", 3, 5),
    Sketcher.Constraint("Equal", 5, 7),
    Sketcher.Constraint("Horizontal", 3, 3, 5, 3),
    Sketcher.Constraint("Horizontal", 1, 3, 7, 3),
    Sketcher.Constraint("Horizontal", 2, 2, 5, 1),
    Sketcher.Constraint("Horizontal", 1, 1, 6, 2),
    Sketcher.Constraint("Vertical", 1, 3, 3, 3),
    Sketcher.Constraint("Vertical", 0, 2, 3, 1),
    Sketcher.Constraint("Radius", 1, Q("0.0625 in")),
    Sketcher.Constraint("DistanceY", 1, 3, 3, 3, Q("2.97 in")),
    Sketcher.Constraint("DistanceX", 3, 3, 5, 3, Q("1.47 in")),
    Sketcher.Constraint("DistanceY", 0, 2, 1, 3, Q("0.02 in")),
    Sketcher.Constraint("DistanceX", 1, 1, 1, 3, Q("0.02 in")),
    Sketcher.Constraint("DistanceY", -1, 1, 1, 3, Q("0.265 in")),
    Sketcher.Constraint("DistanceX", 1, 3, -1, 1, Q("28.669 mm")),
])
sketch11.setExpression("Constraints[21]", "Params.sketch11_radius")
sketch11.setExpression("Constraints[25]", "Params.sketch11_width")
pocket9 = body.newObject("PartDesign::Pocket", "Pocket008")
pocket9.Profile = sketch11
pocket9.setExpression("Length", "Params.pocket9_length")
pocket9.Reversed = True

# Sketch on YZ plane
sketch12 = body.newObject("Sketcher::SketchObject", "Sketch011")
sketch12.AttachmentSupport = (doc.getObject("YZ_Plane"), [""])
sketch12.MapMode = "FlatFace"
sketch12.AttachmentOffset = App.Placement(Vector(0, 0, 31), App.Rotation())
sketch12.addGeometry([
    Part.LineSegment(Vector(-27.2, 6.2, 0), Vector(7.2, 6.2, 0)),  # 0
    Part.ArcOfCircle(Part.Circle(Vector(8.7, 6.7, 0), Vector(0, 0, 1), 1.6), math.radians(-161), math.radians(71)),  # 1
    Part.LineSegment(Vector(9.2, 8.2, 0), Vector(9.2, 80.7, 0)),  # 2
    Part.ArcOfCircle(Part.Circle(Vector(8.7, 82.2, 0), Vector(0, 0, 1), 1.6), math.radians(-71), math.radians(161)),  # 3
    Part.LineSegment(Vector(7.2, 82.7, 0), Vector(-27.2, 82.7, 0)),  # 4
    Part.ArcOfCircle(Part.Circle(Vector(-28.7, 82.2, 0), Vector(0, 0, 1), 1.6), math.radians(19), math.radians(251)),  # 5
    Part.LineSegment(Vector(-29.2, 80.7, 0), Vector(-29.2, 8.2, 0)),  # 6
    Part.ArcOfCircle(Part.Circle(Vector(-28.7, 6.7, 0), Vector(0, 0, 1), 1.6), math.radians(109), math.radians(341)),  # 7
], False)
sketch12.addConstraint([
    Sketcher.Constraint("Coincident", 0, 2, 1, 1),
    Sketcher.Constraint("Coincident", 1, 2, 2, 1),
    Sketcher.Constraint("Coincident", 2, 2, 3, 1),
    Sketcher.Constraint("Coincident", 3, 2, 4, 1),
    Sketcher.Constraint("Coincident", 4, 2, 5, 1),
    Sketcher.Constraint("Coincident", 5, 2, 6, 1),
    Sketcher.Constraint("Coincident", 6, 2, 7, 1),
    Sketcher.Constraint("Coincident", 7, 2, 0, 1),
    Sketcher.Constraint("Horizontal", 0),
    Sketcher.Constraint("Vertical", 2),
    Sketcher.Constraint("Horizontal", 4),
    Sketcher.Constraint("Vertical", 6),
    Sketcher.Constraint("Equal", 1, 3),
    Sketcher.Constraint("Equal", 3, 5),
    Sketcher.Constraint("Equal", 5, 7),
    Sketcher.Constraint("Horizontal", 3, 3, 5, 3),
    Sketcher.Constraint("Horizontal", 1, 3, 7, 3),
    Sketcher.Constraint("Horizontal", 2, 2, 5, 2),
    Sketcher.Constraint("Horizontal", 1, 2, 6, 2),
    Sketcher.Constraint("Vertical", 1, 3, 3, 3),
    Sketcher.Constraint("Vertical", 0, 2, 3, 2),
    Sketcher.Constraint("Radius", 1, Q("0.0625 in")),
    Sketcher.Constraint("DistanceY", 1, 3, 3, 3, Q("2.97 in")),
    Sketcher.Constraint("DistanceX", 5, 3, 3, 3, Q("1.47 in")),
    Sketcher.Constraint("DistanceY", 0, 2, 1, 3, Q("0.02 in")),
    Sketcher.Constraint("DistanceX", 1, 3, 1, 2, Q("0.02 in")),
    Sketcher.Constraint("DistanceY", -1, 1, 1, 3, Q("0.265 in")),
    Sketcher.Constraint("DistanceX", -1, 1, 1, 3, Q("8.669 mm")),
])
sketch12.setExpression("Constraints[21]", "Params.sketch12_radius")
sketch12.setExpression("Constraints[25]", "Params.sketch12_width")
pocket10 = body.newObject("PartDesign::Pocket", "Pocket009")
pocket10.Profile = sketch12
pocket10.setExpression("Length", "Params.pocket10_length")

# Sketch on XZ plane
sketch13 = body.newObject("Sketcher::SketchObject", "Sketch012")
sketch13.AttachmentSupport = (doc.getObject("XZ_Plane"), [""])
sketch13.MapMode = "FlatFace"
sketch13.AttachmentOffset = App.Placement(Vector(0, 0, -29.31), App.Rotation())
sketch13.addGeometry([
    Part.LineSegment(Vector(17.2, 6.2, 0), Vector(-17.2, 6.2, 0)),  # 0
    Part.ArcOfCircle(Part.Circle(Vector(-18.7, 6.7, 0), Vector(0, 0, 1), 1.6), math.radians(109), math.radians(341)),  # 1
    Part.LineSegment(Vector(-19.2, 8.2, 0), Vector(-19.2, 80.7, 0)),  # 2
    Part.ArcOfCircle(Part.Circle(Vector(-18.7, 82.2, 0), Vector(0, 0, 1), 1.6), math.radians(19), math.radians(251)),  # 3
    Part.LineSegment(Vector(-17.2, 82.7, 0), Vector(17.2, 82.7, 0)),  # 4
    Part.ArcOfCircle(Part.Circle(Vector(18.7, 82.2, 0), Vector(0, 0, 1), 1.6), math.radians(-71), math.radians(161)),  # 5
    Part.LineSegment(Vector(19.2, 80.7, 0), Vector(19.2, 8.2, 0)),  # 6
    Part.ArcOfCircle(Part.Circle(Vector(18.7, 6.7, 0), Vector(0, 0, 1), 1.6), math.radians(-161), math.radians(71)),  # 7
], False)
sketch13.addConstraint([
    Sketcher.Constraint("Coincident", 0, 2, 1, 2),
    Sketcher.Constraint("Coincident", 1, 1, 2, 1),
    Sketcher.Constraint("Coincident", 2, 2, 3, 2),
    Sketcher.Constraint("Coincident", 3, 1, 4, 1),
    Sketcher.Constraint("Coincident", 4, 2, 5, 2),
    Sketcher.Constraint("Coincident", 5, 1, 6, 1),
    Sketcher.Constraint("Coincident", 6, 2, 7, 2),
    Sketcher.Constraint("Coincident", 7, 1, 0, 1),
    Sketcher.Constraint("Horizontal", 0),
    Sketcher.Constraint("Vertical", 2),
    Sketcher.Constraint("Horizontal", 4),
    Sketcher.Constraint("Vertical", 6),
    Sketcher.Constraint("Equal", 1, 3),
    Sketcher.Constraint("Equal", 3, 5),
    Sketcher.Constraint("Equal", 5, 7),
    Sketcher.Constraint("Symmetric", 3, 3, 5, 3, -2),
    Sketcher.Constraint("Symmetric", 1, 3, 7, 3, -2),
    Sketcher.Constraint("Horizontal", 2, 2, 5, 1),
    Sketcher.Constraint("Vertical", 1, 3, 3, 3),
    Sketcher.Constraint("Vertical", 0, 2, 3, 1),
    Sketcher.Constraint("Radius", 1, Q("0.0625 in")),
    Sketcher.Constraint("DistanceY", 1, 3, 3, 3, Q("2.97 in")),
    Sketcher.Constraint("DistanceX", 3, 3, 5, 3, Q("1.47 in")),
    Sketcher.Constraint("DistanceY", 0, 2, 1, 3, Q("0.02 in")),
    Sketcher.Constraint("DistanceX", 1, 1, 1, 3, Q("0.02 in")),
    Sketcher.Constraint("DistanceY", -1, 1, 1, 3, Q("0.265 in")),
])
sketch13.setExpression("Constraints[20]", "Params.sketch13_radius")
sketch13.setExpression("Constraints[24]", "Params.sketch13_width")
pocket11 = body.newObject("PartDesign::Pocket", "Pocket010")
pocket11.Profile = sketch13
pocket11.setExpression("Length", "Params.pocket11_length")
pocket11.Reversed = True

doc.recompute()
